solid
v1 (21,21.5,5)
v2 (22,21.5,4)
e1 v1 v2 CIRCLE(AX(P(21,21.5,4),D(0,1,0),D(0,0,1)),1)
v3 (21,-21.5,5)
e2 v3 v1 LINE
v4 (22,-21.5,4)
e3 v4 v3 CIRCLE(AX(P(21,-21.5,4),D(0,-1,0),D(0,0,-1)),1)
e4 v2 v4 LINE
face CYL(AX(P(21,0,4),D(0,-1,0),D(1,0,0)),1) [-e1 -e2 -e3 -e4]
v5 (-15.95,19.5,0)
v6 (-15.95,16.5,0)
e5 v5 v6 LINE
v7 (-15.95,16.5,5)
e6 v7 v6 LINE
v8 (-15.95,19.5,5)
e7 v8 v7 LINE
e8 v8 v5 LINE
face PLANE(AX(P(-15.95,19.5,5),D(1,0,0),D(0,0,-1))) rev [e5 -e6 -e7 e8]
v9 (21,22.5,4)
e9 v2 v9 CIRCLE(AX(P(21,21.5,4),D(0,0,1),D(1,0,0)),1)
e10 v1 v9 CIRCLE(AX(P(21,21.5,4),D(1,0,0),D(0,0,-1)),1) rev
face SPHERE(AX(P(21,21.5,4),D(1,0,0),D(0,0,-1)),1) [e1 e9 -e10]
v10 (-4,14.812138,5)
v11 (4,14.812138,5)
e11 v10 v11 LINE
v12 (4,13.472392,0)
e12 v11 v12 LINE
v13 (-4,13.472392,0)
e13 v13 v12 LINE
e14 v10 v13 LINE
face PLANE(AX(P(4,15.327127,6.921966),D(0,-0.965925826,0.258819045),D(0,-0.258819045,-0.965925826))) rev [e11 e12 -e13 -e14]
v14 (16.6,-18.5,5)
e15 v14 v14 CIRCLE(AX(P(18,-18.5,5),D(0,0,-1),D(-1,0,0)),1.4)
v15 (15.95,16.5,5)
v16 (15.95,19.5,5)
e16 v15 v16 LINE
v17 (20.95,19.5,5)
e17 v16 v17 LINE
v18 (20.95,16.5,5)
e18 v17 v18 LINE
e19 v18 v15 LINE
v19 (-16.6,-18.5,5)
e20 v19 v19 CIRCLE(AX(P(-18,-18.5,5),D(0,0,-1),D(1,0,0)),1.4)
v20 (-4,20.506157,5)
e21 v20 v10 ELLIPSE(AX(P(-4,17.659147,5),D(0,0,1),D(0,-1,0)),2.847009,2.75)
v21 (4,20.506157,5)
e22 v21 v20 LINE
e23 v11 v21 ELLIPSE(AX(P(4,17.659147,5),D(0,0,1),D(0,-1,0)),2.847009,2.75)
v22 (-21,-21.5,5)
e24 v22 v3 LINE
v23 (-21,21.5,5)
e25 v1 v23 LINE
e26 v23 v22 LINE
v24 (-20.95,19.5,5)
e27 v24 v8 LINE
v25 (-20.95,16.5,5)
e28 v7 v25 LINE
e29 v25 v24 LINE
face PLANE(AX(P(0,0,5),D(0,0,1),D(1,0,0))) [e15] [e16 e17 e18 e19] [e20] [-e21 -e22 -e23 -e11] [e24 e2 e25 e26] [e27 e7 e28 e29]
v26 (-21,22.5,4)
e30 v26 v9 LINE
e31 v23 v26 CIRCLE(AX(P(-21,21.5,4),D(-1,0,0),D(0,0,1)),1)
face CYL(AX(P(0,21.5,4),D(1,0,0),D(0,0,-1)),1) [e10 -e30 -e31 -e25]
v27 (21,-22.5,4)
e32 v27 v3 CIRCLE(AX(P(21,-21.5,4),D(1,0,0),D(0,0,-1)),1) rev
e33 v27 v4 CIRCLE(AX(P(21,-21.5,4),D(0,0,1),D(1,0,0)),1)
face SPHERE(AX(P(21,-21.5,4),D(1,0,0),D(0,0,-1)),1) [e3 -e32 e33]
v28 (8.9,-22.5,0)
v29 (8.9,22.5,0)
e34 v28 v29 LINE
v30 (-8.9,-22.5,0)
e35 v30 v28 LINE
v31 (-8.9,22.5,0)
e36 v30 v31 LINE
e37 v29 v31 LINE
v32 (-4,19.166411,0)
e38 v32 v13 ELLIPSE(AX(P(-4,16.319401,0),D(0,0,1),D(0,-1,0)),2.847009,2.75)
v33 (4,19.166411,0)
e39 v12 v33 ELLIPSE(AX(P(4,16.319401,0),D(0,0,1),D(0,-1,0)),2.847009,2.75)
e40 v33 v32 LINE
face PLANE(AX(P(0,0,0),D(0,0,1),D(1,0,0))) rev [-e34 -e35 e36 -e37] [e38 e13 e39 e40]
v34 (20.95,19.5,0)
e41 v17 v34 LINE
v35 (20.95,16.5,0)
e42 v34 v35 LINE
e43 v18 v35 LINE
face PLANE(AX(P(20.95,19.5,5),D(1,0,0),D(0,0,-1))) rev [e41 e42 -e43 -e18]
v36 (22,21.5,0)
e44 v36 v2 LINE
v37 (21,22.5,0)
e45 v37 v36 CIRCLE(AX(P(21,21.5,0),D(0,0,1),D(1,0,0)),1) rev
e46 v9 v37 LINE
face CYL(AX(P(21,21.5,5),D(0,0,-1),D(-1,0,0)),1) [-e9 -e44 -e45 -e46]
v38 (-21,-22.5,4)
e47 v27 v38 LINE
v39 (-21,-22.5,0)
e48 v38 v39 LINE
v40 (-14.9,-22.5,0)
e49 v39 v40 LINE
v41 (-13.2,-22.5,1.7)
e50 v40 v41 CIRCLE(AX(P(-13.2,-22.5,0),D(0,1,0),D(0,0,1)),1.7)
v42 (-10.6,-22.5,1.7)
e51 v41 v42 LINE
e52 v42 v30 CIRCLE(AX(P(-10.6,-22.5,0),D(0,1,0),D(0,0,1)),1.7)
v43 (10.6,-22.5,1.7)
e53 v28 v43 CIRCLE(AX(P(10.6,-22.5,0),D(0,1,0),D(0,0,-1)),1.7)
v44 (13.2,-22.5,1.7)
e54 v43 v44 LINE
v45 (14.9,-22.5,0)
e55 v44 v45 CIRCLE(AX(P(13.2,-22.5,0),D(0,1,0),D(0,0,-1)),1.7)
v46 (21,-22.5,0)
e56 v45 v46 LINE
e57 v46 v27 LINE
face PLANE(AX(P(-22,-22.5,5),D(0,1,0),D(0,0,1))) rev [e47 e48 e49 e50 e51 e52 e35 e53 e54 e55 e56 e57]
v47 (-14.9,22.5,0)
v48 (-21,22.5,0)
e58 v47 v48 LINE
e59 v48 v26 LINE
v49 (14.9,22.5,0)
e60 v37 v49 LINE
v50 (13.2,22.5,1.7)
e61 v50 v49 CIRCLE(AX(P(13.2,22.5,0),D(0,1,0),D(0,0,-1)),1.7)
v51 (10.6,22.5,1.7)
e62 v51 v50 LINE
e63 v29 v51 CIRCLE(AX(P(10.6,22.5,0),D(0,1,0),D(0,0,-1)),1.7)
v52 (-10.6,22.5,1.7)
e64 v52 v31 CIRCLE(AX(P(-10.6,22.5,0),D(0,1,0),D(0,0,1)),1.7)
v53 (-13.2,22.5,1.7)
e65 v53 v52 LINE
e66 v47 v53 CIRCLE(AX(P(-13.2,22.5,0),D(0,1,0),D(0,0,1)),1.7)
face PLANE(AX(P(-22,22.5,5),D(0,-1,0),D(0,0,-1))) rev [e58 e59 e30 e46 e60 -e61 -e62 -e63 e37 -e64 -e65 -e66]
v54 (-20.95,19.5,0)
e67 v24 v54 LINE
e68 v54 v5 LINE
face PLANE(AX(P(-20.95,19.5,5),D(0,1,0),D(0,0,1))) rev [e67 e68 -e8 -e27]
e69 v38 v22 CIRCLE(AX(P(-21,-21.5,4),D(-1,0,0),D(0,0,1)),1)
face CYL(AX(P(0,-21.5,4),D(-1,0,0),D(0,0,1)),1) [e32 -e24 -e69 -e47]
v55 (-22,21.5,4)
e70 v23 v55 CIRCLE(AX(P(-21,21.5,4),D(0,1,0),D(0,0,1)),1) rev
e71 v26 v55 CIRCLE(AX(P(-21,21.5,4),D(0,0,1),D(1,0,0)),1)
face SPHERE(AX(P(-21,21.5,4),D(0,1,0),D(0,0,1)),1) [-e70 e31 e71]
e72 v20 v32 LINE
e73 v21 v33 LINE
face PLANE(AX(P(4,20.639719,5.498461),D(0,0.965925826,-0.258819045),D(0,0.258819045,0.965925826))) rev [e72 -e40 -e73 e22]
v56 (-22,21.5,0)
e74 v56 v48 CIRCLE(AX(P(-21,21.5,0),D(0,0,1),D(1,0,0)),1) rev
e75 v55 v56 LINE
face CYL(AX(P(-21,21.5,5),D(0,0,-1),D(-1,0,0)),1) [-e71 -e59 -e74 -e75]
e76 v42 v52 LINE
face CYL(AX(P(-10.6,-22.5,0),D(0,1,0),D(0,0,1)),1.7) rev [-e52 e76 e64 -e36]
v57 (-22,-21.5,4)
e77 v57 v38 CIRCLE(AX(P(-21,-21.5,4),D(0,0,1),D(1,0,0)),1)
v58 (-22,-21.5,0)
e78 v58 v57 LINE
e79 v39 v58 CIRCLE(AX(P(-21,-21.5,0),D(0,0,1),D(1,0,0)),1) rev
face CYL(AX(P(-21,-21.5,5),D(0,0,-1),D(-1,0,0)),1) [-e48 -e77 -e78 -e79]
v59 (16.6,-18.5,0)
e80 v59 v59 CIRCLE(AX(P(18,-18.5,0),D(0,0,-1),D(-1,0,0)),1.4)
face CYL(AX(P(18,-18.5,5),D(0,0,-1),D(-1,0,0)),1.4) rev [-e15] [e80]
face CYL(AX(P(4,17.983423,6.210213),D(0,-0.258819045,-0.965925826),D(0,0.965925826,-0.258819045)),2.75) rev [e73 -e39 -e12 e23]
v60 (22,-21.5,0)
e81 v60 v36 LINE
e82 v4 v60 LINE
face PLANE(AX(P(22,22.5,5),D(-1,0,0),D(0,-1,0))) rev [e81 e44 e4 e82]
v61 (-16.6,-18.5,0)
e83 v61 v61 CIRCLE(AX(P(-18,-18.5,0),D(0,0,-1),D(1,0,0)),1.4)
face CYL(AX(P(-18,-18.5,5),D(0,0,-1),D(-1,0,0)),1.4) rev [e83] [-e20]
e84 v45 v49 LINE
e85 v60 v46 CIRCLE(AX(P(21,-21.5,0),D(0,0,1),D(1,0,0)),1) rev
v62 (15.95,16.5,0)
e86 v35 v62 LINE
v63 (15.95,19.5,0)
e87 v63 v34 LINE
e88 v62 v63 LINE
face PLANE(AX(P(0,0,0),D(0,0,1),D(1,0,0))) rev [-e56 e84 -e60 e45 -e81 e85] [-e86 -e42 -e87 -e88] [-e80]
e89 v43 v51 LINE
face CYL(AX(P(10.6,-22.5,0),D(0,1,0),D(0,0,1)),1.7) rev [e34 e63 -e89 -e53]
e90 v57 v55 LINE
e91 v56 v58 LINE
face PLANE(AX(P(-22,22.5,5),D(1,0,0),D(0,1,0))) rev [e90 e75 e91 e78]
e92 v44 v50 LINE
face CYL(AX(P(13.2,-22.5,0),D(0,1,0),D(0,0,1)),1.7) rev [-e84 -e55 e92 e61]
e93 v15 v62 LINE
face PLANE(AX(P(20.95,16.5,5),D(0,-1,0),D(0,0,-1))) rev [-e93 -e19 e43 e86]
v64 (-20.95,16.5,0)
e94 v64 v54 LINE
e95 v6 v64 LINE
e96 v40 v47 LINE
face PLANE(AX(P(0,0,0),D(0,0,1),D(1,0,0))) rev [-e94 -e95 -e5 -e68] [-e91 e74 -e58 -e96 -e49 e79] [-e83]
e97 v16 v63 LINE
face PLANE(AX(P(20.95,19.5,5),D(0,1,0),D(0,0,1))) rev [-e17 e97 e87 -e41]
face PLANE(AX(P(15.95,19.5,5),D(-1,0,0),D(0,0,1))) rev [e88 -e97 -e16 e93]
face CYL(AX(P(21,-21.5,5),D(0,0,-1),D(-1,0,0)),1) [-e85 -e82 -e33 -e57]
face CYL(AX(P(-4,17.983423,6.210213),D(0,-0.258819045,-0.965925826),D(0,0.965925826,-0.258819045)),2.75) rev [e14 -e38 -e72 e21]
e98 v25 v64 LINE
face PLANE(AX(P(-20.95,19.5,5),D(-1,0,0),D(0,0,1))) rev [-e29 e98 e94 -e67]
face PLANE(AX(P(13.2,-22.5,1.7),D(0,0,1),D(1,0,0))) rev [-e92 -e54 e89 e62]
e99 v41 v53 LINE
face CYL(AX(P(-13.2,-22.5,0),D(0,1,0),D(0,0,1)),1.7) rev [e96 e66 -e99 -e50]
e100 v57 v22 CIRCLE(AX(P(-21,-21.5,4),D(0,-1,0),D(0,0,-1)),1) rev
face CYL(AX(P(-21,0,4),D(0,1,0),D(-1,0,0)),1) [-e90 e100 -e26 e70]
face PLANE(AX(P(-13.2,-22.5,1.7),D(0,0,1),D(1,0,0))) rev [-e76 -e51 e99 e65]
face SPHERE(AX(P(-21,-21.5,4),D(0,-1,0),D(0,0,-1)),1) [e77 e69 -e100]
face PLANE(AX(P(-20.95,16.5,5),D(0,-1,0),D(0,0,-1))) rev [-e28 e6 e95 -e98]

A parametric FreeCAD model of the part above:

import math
import FreeCAD as App
import Part
import Sketcher


def edges_at(feature, points):
    """Names of the edges that pass closest to the given points."""
    edges = feature.Shape.Edges
    near = lambda p: min(range(len(edges)), key=lambda i: edges[i].distToShape(Part.Vertex(*p))[0])
    return sorted({f"Edge{near(p) + 1}" for p in points})


def add_polygon(sketch, points):
    """Adds a closed chain of lines whose ends are joined by coincident constraints."""
    first, n = sketch.GeometryCount, len(points)
    for a, b in zip(points, points[1:] + points[:1]):
        sketch.addGeometry(Part.LineSegment(App.Vector(*a, 0), App.Vector(*b, 0)), False)
    for i in range(n):
        sketch.addConstraint(Sketcher.Constraint("Coincident", first + i, 2, first + (i + 1) % n, 1))

doc = App.newDocument("Part")
body = doc.addObject("PartDesign::Body", "Body")

# Sketch on XY plane
sketch1 = body.newObject("Sketcher::SketchObject", "Sketch")
sketch1.AttachmentSupport = (doc.getObject("XY_Plane"), [""])
sketch1.MapMode = "FlatFace"
add_polygon(sketch1, [(-22, 22), (-22, -22), (22, -22), (22, 22)])  # lines 0-3
sketch1.addConstraint([
    Sketcher.Constraint("Vertical", 0),
    Sketcher.Constraint("Horizontal", 1),
    Sketcher.Constraint("Vertical", 2),
    Sketcher.Constraint("Horizontal", 3),
    Sketcher.Constraint("Symmetric", 0, 2, 2, 2, -1, 1),
    Sketcher.Constraint("DistanceX", 1, 1, 1, 2, 44.0),
    Sketcher.Constraint("DistanceY", 0, 2, 0, 1, 45.0),
])
pad1 = body.newObject("PartDesign::Pad", "Pad")
pad1.Profile = sketch1
pad1.Length = 5

# Sketch on XZ plane
sketch2 = body.newObject("Sketcher::SketchObject", "Sketch001")
sketch2.AttachmentSupport = (doc.getObject("XZ_Plane"), [""])
sketch2.MapMode = "FlatFace"
sketch2.AttachmentOffset = App.Placement(App.Vector(0, 0, -22.5), App.Rotation())
sketch2.addGeometry([
    Part.LineSegment(App.Vector(-8.9, 0, 0), App.Vector(-14.9, 0, 0)),  # 0
    Part.ArcOfCircle(Part.Circle(App.Vector(-13.2, 0, 0), App.Vector(0, 0, 1), 1.7), math.radians(90), math.radians(180)),  # 1
    Part.LineSegment(App.Vector(-13.2, 1.7, 0), App.Vector(-10.6, 1.7, 0)),  # 2
    Part.ArcOfCircle(Part.Circle(App.Vector(-10.6, 0, 0), App.Vector(0, 0, 1), 1.7), math.radians(0), math.radians(90)),  # 3
    Part.LineSegment(App.Vector(10.6, 1.7, 0), App.Vector(13.2, 1.7, 0)),  # 4
    Part.ArcOfCircle(Part.Circle(App.Vector(13.2, 0, 0), App.Vector(0, 0, 1), 1.7), math.radians(0), math.radians(90)),  # 5
    Part.LineSegment(App.Vector(14.9, 0, 0), App.Vector(8.9, 0, 0)),  # 6
    Part.ArcOfCircle(Part.Circle(App.Vector(10.6, 0, 0), App.Vector(0, 0, 1), 1.7), math.radians(90), math.radians(180)),  # 7
], False)
sketch2.addConstraint([
    Sketcher.Constraint("Coincident", 0, 2, 1, 2),
    Sketcher.Constraint("Tangent", 1, 1, 2, 1),
    Sketcher.Constraint("Tangent", 2, 2, 3, 2),
    Sketcher.Constraint("Coincident", 3, 1, 0, 1),
    Sketcher.Constraint("Tangent", 4, 2, 5, 2),
    Sketcher.Constraint("Coincident", 5, 1, 6, 1),
    Sketcher.Constraint("Coincident", 6, 2, 7, 2),
    Sketcher.Constraint("Tangent", 7, 1, 4, 1),
    Sketcher.Constraint("Horizontal", 0),
    Sketcher.Constraint("Horizontal", 2),
    Sketcher.Constraint("Horizontal", 4),
    Sketcher.Constraint("Horizontal", 6),
    Sketcher.Constraint("Equal", 1, 3),
    Sketcher.Constraint("Equal", 3, 5),
    Sketcher.Constraint("Equal", 5, 7),
    Sketcher.Constraint("Symmetric", 1, 3, 5, 3, -1, 1),
    Sketcher.Constraint("Symmetric", 3, 1, 6, 2, -1, 1),
    Sketcher.Constraint("PointOnObject", 1, 3, -1),
    Sketcher.Constraint("PointOnObject", 0, 2, -1),
    Sketcher.Constraint("Radius", 1, 1.7),
    Sketcher.Constraint("DistanceX", 0, 2, 0, 1, 6.0),
    Sketcher.Constraint("DistanceX", 1, 3, -1, 1, 13.2),
])
pocket1 = body.newObject("PartDesign::Pocket", "Pocket")
pocket1.Profile = sketch2
pocket1.Type = "ThroughAll"
pocket1.Reversed = True

# Sketch on an angled plane
sketch3 = body.newObject("Sketcher::SketchObject", "Sketch002")
sketch3.Placement = App.Placement(App.Vector(0, 0.59613, 4.269238), App.Rotation(App.Vector(-1, 0, 0), App.Vector(0, 0.965925826, -0.258819045), App.Vector(0, -0.258819045, -0.965925826), "ZXY"))
sketch3.addGeometry([
    Part.LineSegment(App.Vector(4, 19, 0), App.Vector(-4, 19, 0)),
    Part.ArcOfCircle(Part.Circle(App.Vector(-4, 16.3, 0), App.Vector(0, 0, 1), 2.8), math.radians(90), math.radians(270)),
    Part.LineSegment(App.Vector(-4, 13.5, 0), App.Vector(4, 13.5, 0)),
    Part.ArcOfCircle(Part.Circle(App.Vector(4, 16.3, 0), App.Vector(0, 0, 1), 2.8), math.radians(-90), math.radians(90)),
], False)
sketch3.addConstraint([
    Sketcher.Constraint("Tangent", 0, 2, 1, 1),
    Sketcher.Constraint("Tangent", 1, 2, 2, 1),
    Sketcher.Constraint("Tangent", 2, 2, 3, 1),
    Sketcher.Constraint("Tangent", 3, 2, 0, 1),
    Sketcher.Constraint("Horizontal", 0),
    Sketcher.Constraint("Horizontal", 2),
    Sketcher.Constraint("DistanceX", 0, 2, 0, 1, 8.0),
    Sketcher.Constraint("Radius", 1, 2.75),
    Sketcher.Constraint("DistanceX", 1, 3, -1, 1, 4.0),
    Sketcher.Constraint("DistanceY", -1, 1, 1, 3, 16.292474),
])
pocket2 = body.newObject("PartDesign::Pocket", "Pocket001")
pocket2.Profile = sketch3
pocket2.Type = "ThroughAll"
pocket2.Midplane = True

# Sketch on XY plane
sketch4 = body.newObject("Sketcher::SketchObject", "Sketch003")
sketch4.AttachmentSupport = (doc.getObject("XY_Plane"), [""])
sketch4.MapMode = "FlatFace"
add_polygon(sketch4, [(20.9, 19.5), (20.9, 16.5), (15.9, 16.5), (15.9, 19.5)])  # lines 0-3
add_polygon(sketch4, [(-15.9, 19.5), (-15.9, 16.5), (-20.9, 16.5), (-20.9, 19.5)])  # lines 4-7
sketch4.addConstraint([
    Sketcher.Constraint("Vertical", 0),
    Sketcher.Constraint("Horizontal", 1),
    Sketcher.Constraint("Vertical", 2),
    Sketcher.Constraint("Horizontal", 3),
    Sketcher.Constraint("Vertical", 4),
    Sketcher.Constraint("Horizontal", 5),
    Sketcher.Constraint("Vertical", 6),
    Sketcher.Constraint("Horizontal", 7),
    Sketcher.Constraint("Symmetric", 1, 2, 4, 2, -2),
    Sketcher.Constraint("Symmetric", 3, 2, 6, 2, -2),
    Sketcher.Constraint("DistanceX", 1, 2, 1, 1, 5.0),
    Sketcher.Constraint("DistanceY", 0, 2, 0, 1, 3.0),
    Sketcher.Constraint("DistanceY", -1, 1, 0, 2, 16.5),
    Sketcher.Constraint("DistanceX", 4, 2, 1, 2, 31.9),
])
pocket3 = body.newObject("PartDesign::Pocket", "Pocket002")
pocket3.Profile = sketch4
pocket3.Type = "ThroughAll"
pocket3.Reversed = True

# Sketch on XY plane
sketch5 = body.newObject("Sketcher::SketchObject", "Sketch004")
sketch5.AttachmentSupport = (doc.getObject("XY_Plane"), [""])
sketch5.MapMode = "FlatFace"
sketch5.addGeometry([
    Part.Circle(App.Vector(18, -18.5, 0), App.Vector(0, 0, 1), 1.4),
    Part.Circle(App.Vector(-18, -18.5, 0), App.Vector(0, 0, 1), 1.4),
], False)
sketch5.addConstraint([
    Sketcher.Constraint("Equal", 0, 1),
    Sketcher.Constraint("Symmetric", 0, 3, 1, 3, -2),
    Sketcher.Constraint("Diameter", 0, 2.8),
    Sketcher.Constraint("DistanceX", -1, 1, 0, 3, 18.0),
    Sketcher.Constraint("DistanceY", 0, 3, -1, 1, 18.5),
])
pocket4 = body.newObject("PartDesign::Pocket", "Pocket003")
pocket4.Profile = sketch5
pocket4.Type = "ThroughAll"
pocket4.Reversed = True
doc.recompute()

fillet = body.newObject("PartDesign::Fillet", "Fillet")
fillet.Base = (pocket4, edges_at(pocket4, [
    (-22, 0, 5),
    (0, -22.5, 5),
    (22, 0, 5),
    (22, -22.5, 2.5),
    (-22, -22.5, 2.5),
    (-22, 22.5, 2.5),
    (22, 22.5, 2.5),
    (0, 22.5, 5),
]))
fillet.Radius = 1

doc.recompute()
